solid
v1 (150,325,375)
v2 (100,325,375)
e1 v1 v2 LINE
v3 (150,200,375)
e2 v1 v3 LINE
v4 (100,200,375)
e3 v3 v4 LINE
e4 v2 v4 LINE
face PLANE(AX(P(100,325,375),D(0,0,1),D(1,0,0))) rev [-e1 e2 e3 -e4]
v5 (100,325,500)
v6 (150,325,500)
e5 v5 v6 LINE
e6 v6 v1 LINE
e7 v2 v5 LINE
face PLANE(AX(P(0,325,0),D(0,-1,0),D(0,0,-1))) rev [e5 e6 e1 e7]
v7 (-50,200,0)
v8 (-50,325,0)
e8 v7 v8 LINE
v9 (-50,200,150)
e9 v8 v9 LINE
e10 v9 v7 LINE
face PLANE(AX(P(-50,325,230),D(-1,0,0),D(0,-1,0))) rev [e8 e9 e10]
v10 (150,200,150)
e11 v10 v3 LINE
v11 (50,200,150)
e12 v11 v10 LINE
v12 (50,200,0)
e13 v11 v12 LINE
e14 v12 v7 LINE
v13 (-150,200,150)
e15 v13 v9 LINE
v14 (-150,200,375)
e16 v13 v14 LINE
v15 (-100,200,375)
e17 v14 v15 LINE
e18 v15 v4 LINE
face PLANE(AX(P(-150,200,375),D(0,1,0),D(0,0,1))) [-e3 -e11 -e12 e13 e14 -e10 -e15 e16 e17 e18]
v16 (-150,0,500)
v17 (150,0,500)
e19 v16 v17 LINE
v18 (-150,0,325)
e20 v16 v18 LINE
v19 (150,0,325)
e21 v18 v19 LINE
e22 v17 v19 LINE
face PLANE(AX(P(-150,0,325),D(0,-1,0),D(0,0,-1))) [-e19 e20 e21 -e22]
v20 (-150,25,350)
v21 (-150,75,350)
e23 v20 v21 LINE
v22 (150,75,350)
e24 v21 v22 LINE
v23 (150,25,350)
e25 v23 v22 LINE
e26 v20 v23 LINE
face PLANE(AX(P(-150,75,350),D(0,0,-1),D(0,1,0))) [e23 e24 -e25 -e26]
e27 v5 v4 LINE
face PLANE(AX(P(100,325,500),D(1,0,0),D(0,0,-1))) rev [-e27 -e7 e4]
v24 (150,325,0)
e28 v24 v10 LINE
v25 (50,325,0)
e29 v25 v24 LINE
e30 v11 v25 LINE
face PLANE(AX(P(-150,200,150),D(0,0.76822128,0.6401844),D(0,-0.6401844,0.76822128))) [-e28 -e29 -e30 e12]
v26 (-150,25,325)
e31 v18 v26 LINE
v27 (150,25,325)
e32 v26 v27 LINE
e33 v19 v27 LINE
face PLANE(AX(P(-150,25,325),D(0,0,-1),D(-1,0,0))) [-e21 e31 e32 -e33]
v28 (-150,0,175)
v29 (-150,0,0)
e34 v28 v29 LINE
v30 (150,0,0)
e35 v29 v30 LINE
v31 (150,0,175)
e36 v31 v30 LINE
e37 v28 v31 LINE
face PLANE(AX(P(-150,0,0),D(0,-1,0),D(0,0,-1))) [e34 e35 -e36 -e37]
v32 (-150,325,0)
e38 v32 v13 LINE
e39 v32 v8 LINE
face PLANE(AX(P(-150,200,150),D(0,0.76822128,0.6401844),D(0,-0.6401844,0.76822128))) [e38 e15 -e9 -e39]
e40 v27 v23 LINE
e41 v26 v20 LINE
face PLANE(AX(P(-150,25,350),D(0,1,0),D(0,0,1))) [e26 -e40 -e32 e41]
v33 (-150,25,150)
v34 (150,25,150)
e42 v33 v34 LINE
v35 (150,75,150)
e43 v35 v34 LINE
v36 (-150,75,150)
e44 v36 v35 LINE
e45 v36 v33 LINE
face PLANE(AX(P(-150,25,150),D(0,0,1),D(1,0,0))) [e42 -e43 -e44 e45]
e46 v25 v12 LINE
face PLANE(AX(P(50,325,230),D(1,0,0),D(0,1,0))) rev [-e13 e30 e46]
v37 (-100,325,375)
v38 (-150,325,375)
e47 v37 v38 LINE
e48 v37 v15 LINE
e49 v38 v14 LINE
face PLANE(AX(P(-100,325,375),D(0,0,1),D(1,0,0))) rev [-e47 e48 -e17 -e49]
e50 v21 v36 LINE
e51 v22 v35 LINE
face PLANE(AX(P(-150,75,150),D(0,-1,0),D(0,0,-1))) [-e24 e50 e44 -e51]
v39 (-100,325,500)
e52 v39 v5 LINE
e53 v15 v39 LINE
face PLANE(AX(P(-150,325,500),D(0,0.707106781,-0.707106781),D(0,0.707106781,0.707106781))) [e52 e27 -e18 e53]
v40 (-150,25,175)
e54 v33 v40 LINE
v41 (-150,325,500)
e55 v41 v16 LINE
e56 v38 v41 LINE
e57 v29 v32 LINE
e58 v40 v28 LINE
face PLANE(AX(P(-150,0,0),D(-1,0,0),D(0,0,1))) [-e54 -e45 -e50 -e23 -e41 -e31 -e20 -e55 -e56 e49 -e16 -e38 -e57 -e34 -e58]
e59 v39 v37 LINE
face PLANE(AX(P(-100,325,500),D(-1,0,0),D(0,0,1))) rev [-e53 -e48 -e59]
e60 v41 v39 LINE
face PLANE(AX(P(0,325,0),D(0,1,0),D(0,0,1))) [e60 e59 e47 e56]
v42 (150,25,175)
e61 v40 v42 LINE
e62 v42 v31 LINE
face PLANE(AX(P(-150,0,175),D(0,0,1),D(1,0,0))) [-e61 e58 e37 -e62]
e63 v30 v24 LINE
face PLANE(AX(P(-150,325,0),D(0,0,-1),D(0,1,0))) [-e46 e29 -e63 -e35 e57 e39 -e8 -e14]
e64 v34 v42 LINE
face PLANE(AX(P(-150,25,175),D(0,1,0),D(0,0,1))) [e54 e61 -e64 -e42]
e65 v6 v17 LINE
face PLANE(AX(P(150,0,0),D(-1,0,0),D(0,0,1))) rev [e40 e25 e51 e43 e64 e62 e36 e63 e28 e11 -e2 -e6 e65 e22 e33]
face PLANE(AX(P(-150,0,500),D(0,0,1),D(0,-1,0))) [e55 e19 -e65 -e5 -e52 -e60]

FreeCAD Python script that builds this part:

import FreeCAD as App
import Part
import Sketcher
from FreeCAD import Vector
Q = App.Units.Quantity

doc = App.newDocument("Part")
body = doc.addObject("PartDesign::Body", "Body")

# Sketch on YZ plane
sketch1 = body.newObject("Sketcher::SketchObject", "Sketch")
sketch1.AttachmentSupport = (doc.getObject("YZ_Plane"), [""])
sketch1.MapMode = "FlatFace"
sketch1.addGeometry(Part.LineSegment(Vector(0, 175, 0), Vector(0, 0, 0)), False)
sketch1.addGeometry(Part.LineSegment(Vector(0, 0, 0), Vector(325, 0, 0)), False)
sketch1.addGeometry(Part.LineSegment(Vector(325, 0, 0), Vector(200, 150, 0)), False)
sketch1.addGeometry(Part.LineSegment(Vector(200, 150, 0), Vector(200, 375, 0)), False)
sketch1.addGeometry(Part.LineSegment(Vector(200, 375, 0), Vector(325, 500, 0)), False)
sketch1.addGeometry(Part.LineSegment(Vector(325, 500, 0), Vector(0, 500, 0)), False)
sketch1.addGeometry(Part.LineSegment(Vector(0, 500, 0), Vector(0, 325, 0)), False)
sketch1.addGeometry(Part.LineSegment(Vector(0, 325, 0), Vector(25, 325, 0)), False)
sketch1.addGeometry(Part.LineSegment(Vector(25, 325, 0), Vector(25, 350, 0)), False)
sketch1.addGeometry(Part.LineSegment(Vector(25, 350, 0), Vector(75, 350, 0)), False)
sketch1.addGeometry(Part.LineSegment(Vector(75, 350, 0), Vector(75, 150, 0)), False)
sketch1.addGeometry(Part.LineSegment(Vector(75, 150, 0), Vector(25, 150, 0)), False)
sketch1.addGeometry(Part.LineSegment(Vector(25, 150, 0), Vector(25, 175, 0)), False)
sketch1.addGeometry(Part.LineSegment(Vector(25, 175, 0), Vector(0, 175, 0)), False)
sketch1.addConstraint(Sketcher.Constraint("Coincident", 0, 2, 1, 1))
sketch1.addConstraint(Sketcher.Constraint("Coincident", 1, 2, 2, 1))
sketch1.addConstraint(Sketcher.Constraint("Coincident", 2, 2, 3, 1))
sketch1.addConstraint(Sketcher.Constraint("Coincident", 3, 2, 4, 1))
sketch1.addConstraint(Sketcher.Constraint("Coincident", 4, 2, 5, 1))
sketch1.addConstraint(Sketcher.Constraint("Coincident", 5, 2, 6, 1))
sketch1.addConstraint(Sketcher.Constraint("Coincident", 6, 2, 7, 1))
sketch1.addConstraint(Sketcher.Constraint("Coincident", 7, 2, 8, 1))
sketch1.addConstraint(Sketcher.Constraint("Coincident", 8, 2, 9, 1))
sketch1.addConstraint(Sketcher.Constraint("Coincident", 9, 2, 10, 1))
sketch1.addConstraint(Sketcher.Constraint("Coincident", 10, 2, 11, 1))
sketch1.addConstraint(Sketcher.Constraint("Coincident", 11, 2, 12, 1))
sketch1.addConstraint(Sketcher.Constraint("Coincident", 12, 2, 13, 1))
sketch1.addConstraint(Sketcher.Constraint("Coincident", 13, 2, 0, 1))
sketch1.addConstraint(Sketcher.Constraint("Vertical", 0))
sketch1.addConstraint(Sketcher.Constraint("Horizontal", 1))
sketch1.addConstraint(Sketcher.Constraint("Vertical", 3))
sketch1.addConstraint(Sketcher.Constraint("Horizontal", 5))
sketch1.addConstraint(Sketcher.Constraint("Vertical", 6))
sketch1.addConstraint(Sketcher.Constraint("Horizontal", 7))
sketch1.addConstraint(Sketcher.Constraint("Vertical", 8))
sketch1.addConstraint(Sketcher.Constraint("Horizontal", 9))
sketch1.addConstraint(Sketcher.Constraint("Vertical", 10))
sketch1.addConstraint(Sketcher.Constraint("Horizontal", 11))
sketch1.addConstraint(Sketcher.Constraint("Vertical", 12))
sketch1.addConstraint(Sketcher.Constraint("Horizontal", 13))
sketch1.addConstraint(Sketcher.Constraint("Coincident", 0, 2, -1, 1))
sketch1.addConstraint(Sketcher.Constraint("PointOnObject", 5, 2, -2))
sketch1.addConstraint(Sketcher.Constraint("Horizontal", 2, 2, 10, 2))
sketch1.addConstraint(Sketcher.Constraint("Vertical", 1, 2, 4, 2))
sketch1.addConstraint(Sketcher.Constraint("Vertical", 8, 2, 11, 2))
sketch1.addConstraint(Sketcher.Constraint("Equal", 0, 6))
sketch1.addConstraint(Sketcher.Constraint("Equal", 13, 8))
sketch1.addConstraint(Sketcher.Constraint("Equal", 8, 12))
sketch1.addConstraint(Sketcher.Constraint("DistanceX", 1, 1, 1, 2, Q("325 mm")))
sketch1.addConstraint(Sketcher.Constraint("DistanceX", 7, 1, 7, 2, Q("25 mm")))
sketch1.addConstraint(Sketcher.Constraint("DistanceX", 9, 1, 9, 2, Q("50 mm")))
sketch1.addConstraint(Sketcher.Constraint("DistanceY", 0, 2, 0, 1, Q("175 mm")))
sketch1.addConstraint(Sketcher.Constraint("DistanceY", 3, 1, 3, 2, Q("225 mm")))
sketch1.addConstraint(Sketcher.Constraint("DistanceY", 10, 2, 10, 1, Q("200 mm")))
sketch1.addConstraint(Sketcher.Constraint("Angle", 4, Q("45 deg")))
pad1 = body.newObject("PartDesign::Pad", "Pad")
pad1.Profile = sketch1
pad1.Type = "TwoLengths"
pad1.Length = 150
pad1.Length2 = 150

# Sketch on XZ plane
sketch2 = body.newObject("Sketcher::SketchObject", "Sketch001")
sketch2.AttachmentSupport = (doc.getObject("XZ_Plane"), [""])
sketch2.MapMode = "FlatFace"
sketch2.AttachmentOffset = App.Placement(Vector(0, 0, -200), App.Rotation())
sketch2.addGeometry(Part.LineSegment(Vector(100, 375, 0), Vector(100, 500, 0)), False)
sketch2.addGeometry(Part.LineSegment(Vector(100, 500, 0), Vector(150, 500, 0)), False)
sketch2.addGeometry(Part.LineSegment(Vector(150, 500, 0), Vector(150, 375, 0)), False)
sketch2.addGeometry(Part.LineSegment(Vector(150, 375, 0), Vector(100, 375, 0)), False)
sketch2.addGeometry(Part.LineSegment(Vector(-150, 375, 0), Vector(-150, 500, 0)), False)
sketch2.addGeometry(Part.LineSegment(Vector(-150, 500, 0), Vector(-100, 500, 0)), False)
sketch2.addGeometry(Part.LineSegment(Vector(-100, 500, 0), Vector(-100, 375, 0)), False)
sketch2.addGeometry(Part.LineSegment(Vector(-100, 375, 0), Vector(-150, 375, 0)), False)
sketch2.addConstraint(Sketcher.Constraint("Coincident", 0, 2, 1, 1))
sketch2.addConstraint(Sketcher.Constraint("Coincident", 1, 2, 2, 1))
sketch2.addConstraint(Sketcher.Constraint("Coincident", 2, 2, 3, 1))
sketch2.addConstraint(Sketcher.Constraint("Coincident", 3, 2, 0, 1))
sketch2.addConstraint(Sketcher.Constraint("Coincident", 4, 2, 5, 1))
sketch2.addConstraint(Sketcher.Constraint("Coincident", 5, 2, 6, 1))
sketch2.addConstraint(Sketcher.Constraint("Coincident", 6, 2, 7, 1))
sketch2.addConstraint(Sketcher.Constraint("Coincident", 7, 2, 4, 1))
sketch2.addConstraint(Sketcher.Constraint("Vertical", 0))
sketch2.addConstraint(Sketcher.Constraint("Horizontal", 1))
sketch2.addConstraint(Sketcher.Constraint("Vertical", 2))
sketch2.addConstraint(Sketcher.Constraint("Horizontal", 3))
sketch2.addConstraint(Sketcher.Constraint("Vertical", 4))
sketch2.addConstraint(Sketcher.Constraint("Horizontal", 5))
sketch2.addConstraint(Sketcher.Constraint("Vertical", 6))
sketch2.addConstraint(Sketcher.Constraint("Horizontal", 7))
sketch2.addConstraint(Sketcher.Constraint("Symmetric", 1, 2, 4, 2, -2))
sketch2.addConstraint(Sketcher.Constraint("Symmetric", 3, 2, 6, 2, -2))
sketch2.addConstraint(Sketcher.Constraint("DistanceX", 1, 1, 1, 2, Q("50 mm")))
sketch2.addConstraint(Sketcher.Constraint("DistanceY", 0, 1, 0, 2, Q("125 mm")))
sketch2.addConstraint(Sketcher.Constraint("DistanceX", -1, 1, 0, 2, Q("100 mm")))
sketch2.addConstraint(Sketcher.Constraint("DistanceY", -1, 1, 0, 2, Q("500 mm")))
pad2 = body.newObject("PartDesign::Pad", "Pad001")
pad2.Profile = sketch2
pad2.Length = 125
pad2.Reversed = True

# Sketch on XY plane
sketch3 = body.newObject("Sketcher::SketchObject", "Sketch002")
sketch3.AttachmentSupport = (doc.getObject("XY_Plane"), [""])
sketch3.MapMode = "FlatFace"
sketch3.addGeometry(Part.LineSegment(Vector(50, 325, 0), Vector(50, 200, 0)), False)
sketch3.addGeometry(Part.LineSegment(Vector(50, 200, 0), Vector(-50, 200, 0)), False)
sketch3.addGeometry(Part.LineSegment(Vector(-50, 200, 0), Vector(-50, 325, 0)), False)
sketch3.addGeometry(Part.LineSegment(Vector(-50, 325, 0), Vector(50, 325, 0)), False)
sketch3.addConstraint(Sketcher.Constraint("Coincident", 0, 2, 1, 1))
sketch3.addConstraint(Sketcher.Constraint("Coincident", 1, 2, 2, 1))
sketch3.addConstraint(Sketcher.Constraint("Coincident", 2, 2, 3, 1))
sketch3.addConstraint(Sketcher.Constraint("Coincident", 3, 2, 0, 1))
sketch3.addConstraint(Sketcher.Constraint("Vertical", 0))
sketch3.addConstraint(Sketcher.Constraint("Horizontal", 1))
sketch3.addConstraint(Sketcher.Constraint("Vertical", 2))
sketch3.addConstraint(Sketcher.Constraint("Horizontal", 3))
sketch3.addConstraint(Sketcher.Constraint("DistanceX", 1, 2, 1, 1, Q("100 mm")))
sketch3.addConstraint(Sketcher.Constraint("DistanceY", 0, 2, 0, 1, Q("125 mm")))
sketch3.addConstraint(Sketcher.Constraint("DistanceX", -1, 1, 0, 2, Q("50 mm")))
sketch3.addConstraint(Sketcher.Constraint("DistanceY", -1, 1, 0, 2, Q("200 mm")))
pocket1 = body.newObject("PartDesign::Pocket", "Pocket")
pocket1.Profile = sketch3
pocket1.Length = 230
pocket1.Reversed = True

doc.recompute()
